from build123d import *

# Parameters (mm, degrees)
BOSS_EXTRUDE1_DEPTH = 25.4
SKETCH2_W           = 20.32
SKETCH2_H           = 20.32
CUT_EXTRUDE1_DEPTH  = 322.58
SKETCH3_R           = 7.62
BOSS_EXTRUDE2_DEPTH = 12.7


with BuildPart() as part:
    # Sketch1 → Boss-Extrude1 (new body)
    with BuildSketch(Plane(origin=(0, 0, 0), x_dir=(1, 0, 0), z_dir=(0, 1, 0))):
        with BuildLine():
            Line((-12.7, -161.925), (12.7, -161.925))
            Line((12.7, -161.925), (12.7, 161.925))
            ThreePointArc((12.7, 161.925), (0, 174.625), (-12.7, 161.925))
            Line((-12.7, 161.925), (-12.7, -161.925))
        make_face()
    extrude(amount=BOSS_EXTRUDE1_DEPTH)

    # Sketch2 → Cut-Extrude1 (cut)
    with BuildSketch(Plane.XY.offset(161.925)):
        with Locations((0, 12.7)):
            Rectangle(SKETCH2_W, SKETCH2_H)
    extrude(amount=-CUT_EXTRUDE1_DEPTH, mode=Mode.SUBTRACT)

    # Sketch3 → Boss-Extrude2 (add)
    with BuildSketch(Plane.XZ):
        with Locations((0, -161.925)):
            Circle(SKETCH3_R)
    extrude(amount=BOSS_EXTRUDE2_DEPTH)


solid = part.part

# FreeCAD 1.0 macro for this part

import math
import FreeCAD as App
import Part
import Sketcher
from FreeCAD import Vector
Q = App.Units.Quantity

doc = App.newDocument("Part")
body = doc.addObject("PartDesign::Body", "Body")

# Sketch on XZ plane
sketch1 = doc.addObject("Sketcher::SketchObject", "Sketch")
body.addObject(sketch1)
sketch1.AttachmentSupport = (doc.XZ_Plane, [""])
sketch1.MapMode = "FlatFace"
sketch1.addGeometry([
    Part.LineSegment(Vector(-12.7, 161.925, 0), Vector(12.7, 161.925, 0)),
    Part.LineSegment(Vector(12.7, 161.925, 0), Vector(12.7, -161.925, 0)),
    Part.ArcOfCircle(Part.Circle(Vector(0, -161.925, 0), Vector(0, 0, 1), 12.7), math.radians(180), math.radians(360)),
    Part.LineSegment(Vector(-12.7, -161.925, 0), Vector(-12.7, 161.925, 0)),
], False)
sketch1.addConstraint([
    Sketcher.Constraint("Coincident", 0, 2, 1, 1),
    Sketcher.Constraint("Tangent", 1, 2, 2, 2),
    Sketcher.Constraint("Tangent", 2, 1, 3, 1),
    Sketcher.Constraint("Coincident", 3, 2, 0, 1),
    Sketcher.Constraint("Horizontal", 0),
    Sketcher.Constraint("Vertical", 1),
    Sketcher.Constraint("Vertical", 3),
    Sketcher.Constraint("Symmetric", 0, 2, 2, 1, -1, 1),
    Sketcher.Constraint("Radius", 2, Q("0.5 in")),
    Sketcher.Constraint("DistanceY", 1, 2, 1, 1, Q("12.75 in")),
])
pad1 = doc.addObject("PartDesign::Pad", "Pad")
body.addObject(pad1)
pad1.Profile = sketch1
pad1.Length = Q("1 in")
pad1.Reversed = True

# Sketch on XY plane
sketch2 = doc.addObject("Sketcher::SketchObject", "Sketch001")
body.addObject(sketch2)
sketch2.AttachmentSupport = (doc.XY_Plane, [""])
sketch2.MapMode = "FlatFace"
sketch2.AttachmentOffset = App.Placement(Vector(0, 0, 6.375 * 25.4), App.Rotation())
sketch2.addGeometry([
    Part.LineSegment(Vector(-10.16, 22.86, 0), Vector(-10.16, 2.54, 0)),
    Part.LineSegment(Vector(-10.16, 2.54, 0), Vector(10.16, 2.54, 0)),
    Part.LineSegment(Vector(10.16, 2.54, 0), Vector(10.16, 22.86, 0)),
    Part.LineSegment(Vector(10.16, 22.86, 0), Vector(-10.16, 22.86, 0)),
], False)
sketch2.addConstraint([
    Sketcher.Constraint("Coincident", 0, 2, 1, 1),
    Sketcher.Constraint("Coincident", 1, 2, 2, 1),
    Sketcher.Constraint("Coincident", 2, 2, 3, 1),
    Sketcher.Constraint("Coincident", 3, 2, 0, 1),
    Sketcher.Constraint("Vertical", 0),
    Sketcher.Constraint("Horizontal", 1),
    Sketcher.Constraint("Vertical", 2),
    Sketcher.Constraint("Horizontal", 3),
    Sketcher.Constraint("Equal", 3, 0),
    Sketcher.Constraint("DistanceX", 1, 1, 1, 2, Q("0.8 in")),
    Sketcher.Constraint("DistanceX", 0, 2, -1, 1, Q("0.4 in")),
    Sketcher.Constraint("DistanceY", -1, 1, 0, 2, Q("0.1 in")),
])
pocket1 = doc.addObject("PartDesign::Pocket", "Pocket")
body.addObject(pocket1)
pocket1.Profile = sketch2
pocket1.Length = Q("12.7 in")

# Sketch on XZ plane
sketch3 = doc.addObject("Sketcher::SketchObject", "Sketch002")
body.addObject(sketch3)
sketch3.AttachmentSupport = (doc.XZ_Plane, [""])
sketch3.MapMode = "FlatFace"
sketch3.addGeometry(Part.Circle(Vector(0, -161.925, 0), Vector(0, 0, 1), 7.62), False)
sketch3.addConstraint([
    Sketcher.Constraint("PointOnObject", 0, 3, -2),
    Sketcher.Constraint("Diameter", 0, Q("0.6 in")),
    Sketcher.Constraint("DistanceY", 0, 3, -1, 1, Q("6.375 in")),
])
pad2 = doc.addObject("PartDesign::Pad", "Pad001")
body.addObject(pad2)
pad2.Profile = sketch3
pad2.Length = Q("0.5 in")

doc.recompute()
